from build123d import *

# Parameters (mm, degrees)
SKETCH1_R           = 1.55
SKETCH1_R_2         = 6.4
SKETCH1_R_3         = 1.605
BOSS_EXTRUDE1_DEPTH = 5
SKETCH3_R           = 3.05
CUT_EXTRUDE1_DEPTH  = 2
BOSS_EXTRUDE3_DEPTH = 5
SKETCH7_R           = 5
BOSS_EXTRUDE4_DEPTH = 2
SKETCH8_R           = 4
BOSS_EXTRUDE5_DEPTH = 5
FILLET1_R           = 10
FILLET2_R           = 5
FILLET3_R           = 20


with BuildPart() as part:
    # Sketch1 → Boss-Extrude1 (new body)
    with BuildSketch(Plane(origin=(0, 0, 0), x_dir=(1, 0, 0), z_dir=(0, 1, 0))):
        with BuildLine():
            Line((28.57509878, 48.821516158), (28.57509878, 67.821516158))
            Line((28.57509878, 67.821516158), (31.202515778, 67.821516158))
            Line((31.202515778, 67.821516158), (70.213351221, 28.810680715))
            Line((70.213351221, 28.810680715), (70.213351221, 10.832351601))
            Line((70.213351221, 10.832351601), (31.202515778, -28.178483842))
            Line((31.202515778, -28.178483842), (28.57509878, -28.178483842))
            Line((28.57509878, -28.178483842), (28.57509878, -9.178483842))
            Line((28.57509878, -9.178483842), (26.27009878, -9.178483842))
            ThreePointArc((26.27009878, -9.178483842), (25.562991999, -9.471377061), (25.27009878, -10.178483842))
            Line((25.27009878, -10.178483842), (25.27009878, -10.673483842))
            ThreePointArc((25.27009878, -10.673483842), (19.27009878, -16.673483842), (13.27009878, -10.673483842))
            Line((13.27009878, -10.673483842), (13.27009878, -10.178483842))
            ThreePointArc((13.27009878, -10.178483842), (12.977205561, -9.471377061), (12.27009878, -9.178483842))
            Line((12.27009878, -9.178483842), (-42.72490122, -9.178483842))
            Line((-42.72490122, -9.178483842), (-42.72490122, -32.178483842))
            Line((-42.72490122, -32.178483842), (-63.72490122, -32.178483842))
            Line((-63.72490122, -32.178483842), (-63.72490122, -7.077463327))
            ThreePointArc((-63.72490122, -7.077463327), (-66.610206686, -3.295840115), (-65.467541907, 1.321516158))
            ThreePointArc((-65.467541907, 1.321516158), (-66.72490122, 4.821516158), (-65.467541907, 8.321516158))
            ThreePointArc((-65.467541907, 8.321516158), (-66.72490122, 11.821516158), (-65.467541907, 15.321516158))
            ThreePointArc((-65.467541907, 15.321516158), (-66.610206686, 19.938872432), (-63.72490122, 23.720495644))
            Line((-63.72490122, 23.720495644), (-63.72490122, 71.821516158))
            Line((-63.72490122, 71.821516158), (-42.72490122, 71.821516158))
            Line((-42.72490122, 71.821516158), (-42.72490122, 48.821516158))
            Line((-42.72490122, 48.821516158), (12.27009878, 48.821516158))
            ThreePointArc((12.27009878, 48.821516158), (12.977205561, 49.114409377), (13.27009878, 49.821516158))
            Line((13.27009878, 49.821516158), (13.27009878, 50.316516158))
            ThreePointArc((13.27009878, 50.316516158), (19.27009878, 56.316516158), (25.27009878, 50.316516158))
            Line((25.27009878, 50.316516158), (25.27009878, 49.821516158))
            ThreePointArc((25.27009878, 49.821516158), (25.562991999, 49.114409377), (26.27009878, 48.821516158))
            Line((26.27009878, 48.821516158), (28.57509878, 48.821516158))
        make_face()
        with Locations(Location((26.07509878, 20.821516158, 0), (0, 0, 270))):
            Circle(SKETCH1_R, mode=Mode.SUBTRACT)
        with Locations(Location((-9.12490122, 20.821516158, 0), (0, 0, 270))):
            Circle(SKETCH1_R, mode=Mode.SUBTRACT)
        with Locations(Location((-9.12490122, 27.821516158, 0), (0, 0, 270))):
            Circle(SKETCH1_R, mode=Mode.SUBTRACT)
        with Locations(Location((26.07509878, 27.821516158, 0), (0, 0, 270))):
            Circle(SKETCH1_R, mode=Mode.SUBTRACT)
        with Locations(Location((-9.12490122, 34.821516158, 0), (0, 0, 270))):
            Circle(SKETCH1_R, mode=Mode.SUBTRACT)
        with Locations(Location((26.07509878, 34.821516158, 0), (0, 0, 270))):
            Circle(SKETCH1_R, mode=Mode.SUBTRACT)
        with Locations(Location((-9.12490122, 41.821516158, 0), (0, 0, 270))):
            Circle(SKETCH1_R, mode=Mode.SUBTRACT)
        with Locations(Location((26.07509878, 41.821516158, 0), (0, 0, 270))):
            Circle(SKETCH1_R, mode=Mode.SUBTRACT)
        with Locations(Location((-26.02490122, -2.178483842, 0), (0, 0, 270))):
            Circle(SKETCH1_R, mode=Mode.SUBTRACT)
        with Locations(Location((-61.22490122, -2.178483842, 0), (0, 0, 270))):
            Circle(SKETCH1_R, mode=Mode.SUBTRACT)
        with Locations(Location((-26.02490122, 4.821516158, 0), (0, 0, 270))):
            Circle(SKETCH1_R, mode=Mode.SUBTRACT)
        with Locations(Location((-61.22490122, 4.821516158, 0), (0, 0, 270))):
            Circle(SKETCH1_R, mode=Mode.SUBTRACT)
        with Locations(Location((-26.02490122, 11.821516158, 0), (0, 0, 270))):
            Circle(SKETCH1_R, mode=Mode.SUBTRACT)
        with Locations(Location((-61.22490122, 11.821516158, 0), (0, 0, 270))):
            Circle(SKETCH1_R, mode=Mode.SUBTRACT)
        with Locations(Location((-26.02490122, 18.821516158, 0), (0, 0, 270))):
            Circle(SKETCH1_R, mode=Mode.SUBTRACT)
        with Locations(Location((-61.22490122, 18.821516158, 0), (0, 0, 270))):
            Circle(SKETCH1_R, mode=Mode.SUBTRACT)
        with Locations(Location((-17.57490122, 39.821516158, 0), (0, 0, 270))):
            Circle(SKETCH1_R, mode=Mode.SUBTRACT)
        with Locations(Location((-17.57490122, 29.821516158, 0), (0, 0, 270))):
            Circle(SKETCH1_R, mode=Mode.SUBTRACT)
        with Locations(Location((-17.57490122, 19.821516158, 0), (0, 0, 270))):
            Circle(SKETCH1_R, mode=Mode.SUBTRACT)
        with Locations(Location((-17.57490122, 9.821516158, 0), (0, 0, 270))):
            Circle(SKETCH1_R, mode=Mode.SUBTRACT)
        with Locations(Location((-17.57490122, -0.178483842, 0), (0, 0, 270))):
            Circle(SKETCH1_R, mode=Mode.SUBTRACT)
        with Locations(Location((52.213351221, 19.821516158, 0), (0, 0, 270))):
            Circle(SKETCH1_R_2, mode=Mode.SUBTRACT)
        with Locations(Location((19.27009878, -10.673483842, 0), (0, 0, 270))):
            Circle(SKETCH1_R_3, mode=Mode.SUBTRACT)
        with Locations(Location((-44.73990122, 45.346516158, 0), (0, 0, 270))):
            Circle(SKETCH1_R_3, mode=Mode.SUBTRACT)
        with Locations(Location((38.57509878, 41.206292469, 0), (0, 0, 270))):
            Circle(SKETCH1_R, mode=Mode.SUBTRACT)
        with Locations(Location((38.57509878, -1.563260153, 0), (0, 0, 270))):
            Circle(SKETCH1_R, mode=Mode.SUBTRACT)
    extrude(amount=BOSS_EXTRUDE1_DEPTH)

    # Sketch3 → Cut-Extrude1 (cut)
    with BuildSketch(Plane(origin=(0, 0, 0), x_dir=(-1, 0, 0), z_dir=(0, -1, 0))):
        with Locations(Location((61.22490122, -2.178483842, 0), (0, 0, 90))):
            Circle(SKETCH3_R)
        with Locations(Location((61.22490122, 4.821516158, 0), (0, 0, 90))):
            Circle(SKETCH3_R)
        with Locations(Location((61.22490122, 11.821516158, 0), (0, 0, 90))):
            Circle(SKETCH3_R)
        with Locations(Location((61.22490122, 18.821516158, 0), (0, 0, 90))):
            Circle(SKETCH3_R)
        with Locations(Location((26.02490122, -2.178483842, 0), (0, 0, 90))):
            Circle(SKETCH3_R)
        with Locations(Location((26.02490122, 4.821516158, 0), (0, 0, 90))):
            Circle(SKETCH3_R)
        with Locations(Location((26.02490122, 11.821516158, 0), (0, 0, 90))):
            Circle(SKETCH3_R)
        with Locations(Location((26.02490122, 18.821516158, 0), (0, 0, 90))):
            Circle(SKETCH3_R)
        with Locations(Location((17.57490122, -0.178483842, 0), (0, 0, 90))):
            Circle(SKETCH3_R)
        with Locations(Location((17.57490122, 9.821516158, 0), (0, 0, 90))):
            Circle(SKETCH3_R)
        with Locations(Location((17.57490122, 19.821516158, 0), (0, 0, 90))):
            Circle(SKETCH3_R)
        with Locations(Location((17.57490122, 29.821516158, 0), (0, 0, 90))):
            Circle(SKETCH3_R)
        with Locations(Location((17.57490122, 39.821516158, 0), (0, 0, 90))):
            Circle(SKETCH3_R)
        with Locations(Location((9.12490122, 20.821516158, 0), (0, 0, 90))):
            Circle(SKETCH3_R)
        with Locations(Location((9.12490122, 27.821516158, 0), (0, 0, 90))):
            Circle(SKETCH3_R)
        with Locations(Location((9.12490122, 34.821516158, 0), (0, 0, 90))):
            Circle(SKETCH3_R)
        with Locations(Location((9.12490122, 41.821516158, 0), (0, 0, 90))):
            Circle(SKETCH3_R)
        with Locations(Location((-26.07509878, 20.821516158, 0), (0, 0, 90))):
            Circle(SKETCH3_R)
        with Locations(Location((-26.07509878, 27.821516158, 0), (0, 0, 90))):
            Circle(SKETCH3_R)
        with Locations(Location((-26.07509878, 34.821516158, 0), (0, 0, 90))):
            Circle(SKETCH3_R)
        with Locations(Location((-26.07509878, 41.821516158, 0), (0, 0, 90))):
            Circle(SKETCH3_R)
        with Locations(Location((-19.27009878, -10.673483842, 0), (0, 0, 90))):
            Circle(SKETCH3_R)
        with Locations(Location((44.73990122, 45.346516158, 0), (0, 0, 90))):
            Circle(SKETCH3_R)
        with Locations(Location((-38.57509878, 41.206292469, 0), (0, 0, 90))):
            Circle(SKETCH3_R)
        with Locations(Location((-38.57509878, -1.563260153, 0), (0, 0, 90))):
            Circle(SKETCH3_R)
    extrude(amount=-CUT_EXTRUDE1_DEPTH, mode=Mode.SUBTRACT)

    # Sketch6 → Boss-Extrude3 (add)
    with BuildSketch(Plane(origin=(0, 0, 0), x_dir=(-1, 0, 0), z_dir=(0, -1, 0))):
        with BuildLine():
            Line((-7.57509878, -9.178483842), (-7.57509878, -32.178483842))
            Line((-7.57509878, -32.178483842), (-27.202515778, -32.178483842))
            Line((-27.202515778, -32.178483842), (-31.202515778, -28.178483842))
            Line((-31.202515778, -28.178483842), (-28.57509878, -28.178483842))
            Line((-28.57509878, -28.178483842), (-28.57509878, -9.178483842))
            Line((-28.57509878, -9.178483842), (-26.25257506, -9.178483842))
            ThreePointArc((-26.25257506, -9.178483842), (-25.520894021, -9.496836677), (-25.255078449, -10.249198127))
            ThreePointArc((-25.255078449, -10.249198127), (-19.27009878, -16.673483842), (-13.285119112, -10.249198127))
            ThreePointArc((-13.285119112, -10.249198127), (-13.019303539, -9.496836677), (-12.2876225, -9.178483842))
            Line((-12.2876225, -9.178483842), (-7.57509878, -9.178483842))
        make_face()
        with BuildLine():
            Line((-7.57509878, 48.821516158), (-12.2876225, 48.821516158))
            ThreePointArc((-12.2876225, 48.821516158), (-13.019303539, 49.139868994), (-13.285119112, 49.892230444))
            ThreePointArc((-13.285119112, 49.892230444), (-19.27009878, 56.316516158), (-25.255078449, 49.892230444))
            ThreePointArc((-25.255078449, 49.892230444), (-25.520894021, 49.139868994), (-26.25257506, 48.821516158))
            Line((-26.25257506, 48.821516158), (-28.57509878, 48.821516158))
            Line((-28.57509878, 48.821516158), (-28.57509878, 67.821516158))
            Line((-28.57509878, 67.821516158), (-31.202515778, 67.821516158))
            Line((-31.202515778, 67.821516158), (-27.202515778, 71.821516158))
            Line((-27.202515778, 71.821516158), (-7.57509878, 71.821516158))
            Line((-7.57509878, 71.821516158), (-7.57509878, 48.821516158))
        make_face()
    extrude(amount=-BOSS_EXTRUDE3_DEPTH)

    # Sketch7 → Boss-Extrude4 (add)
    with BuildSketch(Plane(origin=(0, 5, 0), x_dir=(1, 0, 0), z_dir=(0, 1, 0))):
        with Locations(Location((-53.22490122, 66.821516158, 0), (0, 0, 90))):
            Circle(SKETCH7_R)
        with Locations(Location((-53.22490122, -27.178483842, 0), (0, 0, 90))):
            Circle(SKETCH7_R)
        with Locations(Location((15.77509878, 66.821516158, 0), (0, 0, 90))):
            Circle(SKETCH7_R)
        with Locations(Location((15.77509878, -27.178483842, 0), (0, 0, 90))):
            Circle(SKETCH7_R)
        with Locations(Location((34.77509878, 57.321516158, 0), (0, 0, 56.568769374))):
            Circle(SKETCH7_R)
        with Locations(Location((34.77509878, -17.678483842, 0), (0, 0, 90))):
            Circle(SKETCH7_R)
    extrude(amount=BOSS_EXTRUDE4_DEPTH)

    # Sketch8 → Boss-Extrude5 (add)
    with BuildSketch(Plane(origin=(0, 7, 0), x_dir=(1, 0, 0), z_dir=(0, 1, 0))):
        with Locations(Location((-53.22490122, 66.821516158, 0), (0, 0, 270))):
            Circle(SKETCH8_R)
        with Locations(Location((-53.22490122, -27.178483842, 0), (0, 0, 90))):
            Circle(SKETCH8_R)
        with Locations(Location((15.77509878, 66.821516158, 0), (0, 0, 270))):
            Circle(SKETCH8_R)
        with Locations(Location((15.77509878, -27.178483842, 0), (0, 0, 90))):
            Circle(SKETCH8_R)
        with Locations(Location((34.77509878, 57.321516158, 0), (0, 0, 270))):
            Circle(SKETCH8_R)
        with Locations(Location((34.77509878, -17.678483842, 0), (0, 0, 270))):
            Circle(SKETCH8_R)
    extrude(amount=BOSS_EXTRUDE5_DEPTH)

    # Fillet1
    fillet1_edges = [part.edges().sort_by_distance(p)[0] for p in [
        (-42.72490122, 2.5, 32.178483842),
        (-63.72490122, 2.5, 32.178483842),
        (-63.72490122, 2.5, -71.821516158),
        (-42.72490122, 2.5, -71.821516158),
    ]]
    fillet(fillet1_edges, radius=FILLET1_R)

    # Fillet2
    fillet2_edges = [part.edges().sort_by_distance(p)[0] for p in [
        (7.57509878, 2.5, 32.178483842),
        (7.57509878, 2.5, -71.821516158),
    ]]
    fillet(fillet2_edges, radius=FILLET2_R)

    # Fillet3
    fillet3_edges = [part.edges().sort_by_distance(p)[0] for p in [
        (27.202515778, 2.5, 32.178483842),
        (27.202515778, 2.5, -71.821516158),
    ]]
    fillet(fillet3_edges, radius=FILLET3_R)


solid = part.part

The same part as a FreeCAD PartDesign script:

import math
import FreeCAD as App
import Part
import Sketcher


def edges_at(feature, points):
    """Names of the edges that pass closest to the given points."""
    edges = feature.Shape.Edges
    near = lambda p: min(range(len(edges)), key=lambda i: edges[i].distToShape(Part.Vertex(*p))[0])
    return sorted({f"Edge{near(p) + 1}" for p in points})

doc = App.newDocument("Part")
body = doc.addObject("PartDesign::Body", "Body")

sketch1 = doc.addObject("Sketcher::SketchObject", "Sketch")
body.addObject(sketch1)
sketch1.AttachmentSupport = (doc.XZ_Plane, [""])
sketch1.MapMode = "FlatFace"
sketch1.addGeometry([
    Part.LineSegment(App.Vector(28.58, -67.82, 0), App.Vector(28.58, -48.82, 0)),
    Part.LineSegment(App.Vector(28.58, -48.82, 0), App.Vector(26.27, -48.82, 0)),
    Part.ArcOfCircle(Part.Circle(App.Vector(26.27, -49.82, 0), App.Vector(0, 0, 1), 1), math.radians(90), math.radians(180)),
    Part.LineSegment(App.Vector(25.27, -49.82, 0), App.Vector(25.27, -50.32, 0)),
    Part.ArcOfCircle(Part.Circle(App.Vector(19.27, -50.32, 0), App.Vector(0, 0, 1), 6), math.radians(180), math.radians(360)),
    Part.LineSegment(App.Vector(13.27, -50.32, 0), App.Vector(13.27, -49.82, 0)),
    Part.ArcOfCircle(Part.Circle(App.Vector(12.27, -49.82, 0), App.Vector(0, 0, 1), 1), math.radians(0), math.radians(90)),
    Part.LineSegment(App.Vector(12.27, -48.82, 0), App.Vector(-42.72, -48.82, 0)),
    Part.LineSegment(App.Vector(-42.72, -48.82, 0), App.Vector(-42.72, -71.82, 0)),
    Part.LineSegment(App.Vector(-42.72, -71.82, 0), App.Vector(-63.72, -71.82, 0)),
    Part.LineSegment(App.Vector(-63.72, -71.82, 0), App.Vector(-63.72, -23.72, 0)),
    Part.ArcOfCircle(Part.Circle(App.Vector(-61.22, -18.82, 0), App.Vector(0, 0, 1), 5.5), math.radians(140), math.radians(243)),
    Part.ArcOfCircle(Part.Circle(App.Vector(-61.22, -11.82, 0), App.Vector(0, 0, 1), 5.5), math.radians(140), math.radians(220)),
    Part.ArcOfCircle(Part.Circle(App.Vector(-61.22, -4.82, 0), App.Vector(0, 0, 1), 5.5), math.radians(140), math.radians(220)),
    Part.ArcOfCircle(Part.Circle(App.Vector(-61.22, 2.18, 0), App.Vector(0, 0, 1), 5.5), math.radians(117), math.radians(220)),
    Part.LineSegment(App.Vector(-63.72, 7.08, 0), App.Vector(-63.72, 32.18, 0)),
    Part.LineSegment(App.Vector(-63.72, 32.18, 0), App.Vector(-42.72, 32.18, 0)),
    Part.LineSegment(App.Vector(-42.72, 32.18, 0), App.Vector(-42.72, 9.18, 0)),
    Part.LineSegment(App.Vector(-42.72, 9.18, 0), App.Vector(12.27, 9.18, 0)),
    Part.ArcOfCircle(Part.Circle(App.Vector(12.27, 10.18, 0), App.Vector(0, 0, 1), 1), math.radians(-90), math.radians(0)),
    Part.LineSegment(App.Vector(13.27, 10.18, 0), App.Vector(13.27, 10.67, 0)),
    Part.ArcOfCircle(Part.Circle(App.Vector(19.27, 10.67, 0), App.Vector(0, 0, 1), 6), math.radians(0), math.radians(180)),
    Part.LineSegment(App.Vector(25.27, 10.67, 0), App.Vector(25.27, 10.18, 0)),
    Part.ArcOfCircle(Part.Circle(App.Vector(26.27, 10.18, 0), App.Vector(0, 0, 1), 1), math.radians(-180), math.radians(-90)),
    Part.LineSegment(App.Vector(26.27, 9.18, 0), App.Vector(28.58, 9.18, 0)),
    Part.LineSegment(App.Vector(28.58, 9.18, 0), App.Vector(28.58, 28.18, 0)),
    Part.LineSegment(App.Vector(28.58, 28.18, 0), App.Vector(31.2, 28.18, 0)),
    Part.LineSegment(App.Vector(31.2, 28.18, 0), App.Vector(70.21, -10.83, 0)),
    Part.LineSegment(App.Vector(70.21, -10.83, 0), App.Vector(70.21, -28.81, 0)),
    Part.LineSegment(App.Vector(70.21, -28.81, 0), App.Vector(31.2, -67.82, 0)),
    Part.LineSegment(App.Vector(31.2, -67.82, 0), App.Vector(28.58, -67.82, 0)),
    Part.Circle(App.Vector(38.58, 1.56, 0), App.Vector(0, 0, 1), 1.55),
    Part.Circle(App.Vector(19.27, 10.67, 0), App.Vector(0, 0, 1), 1.6),
    Part.Circle(App.Vector(-26.02, 2.18, 0), App.Vector(0, 0, 1), 1.55),
    Part.Circle(App.Vector(-17.57, 0.18, 0), App.Vector(0, 0, 1), 1.55),
    Part.Circle(App.Vector(-61.22, 2.18, 0), App.Vector(0, 0, 1), 1.55),
    Part.Circle(App.Vector(-26.02, -4.82, 0), App.Vector(0, 0, 1), 1.55),
    Part.Circle(App.Vector(-17.57, -9.82, 0), App.Vector(0, 0, 1), 1.55),
    Part.Circle(App.Vector(-26.02, -11.82, 0), App.Vector(0, 0, 1), 1.55),
    Part.Circle(App.Vector(-61.22, -4.82, 0), App.Vector(0, 0, 1), 1.55),
    Part.Circle(App.Vector(-61.22, -11.82, 0), App.Vector(0, 0, 1), 1.55),
    Part.Circle(App.Vector(52.21, -19.82, 0), App.Vector(0, 0, 1), 6.4),
    Part.Circle(App.Vector(26.08, -20.82, 0), App.Vector(0, 0, 1), 1.55),
    Part.Circle(App.Vector(26.08, -27.82, 0), App.Vector(0, 0, 1), 1.55),
    Part.Circle(App.Vector(38.58, -41.21, 0), App.Vector(0, 0, 1), 1.55),
    Part.Circle(App.Vector(26.08, -34.82, 0), App.Vector(0, 0, 1), 1.55),
    Part.Circle(App.Vector(26.08, -41.82, 0), App.Vector(0, 0, 1), 1.55),
    Part.Circle(App.Vector(-9.12, -20.82, 0), App.Vector(0, 0, 1), 1.55),
    Part.Circle(App.Vector(-17.57, -19.82, 0), App.Vector(0, 0, 1), 1.55),
    Part.Circle(App.Vector(-26.02, -18.82, 0), App.Vector(0, 0, 1), 1.55),
    Part.Circle(App.Vector(-9.12, -27.82, 0), App.Vector(0, 0, 1), 1.55),
    Part.Circle(App.Vector(-17.57, -29.82, 0), App.Vector(0, 0, 1), 1.55),
    Part.Circle(App.Vector(-61.22, -18.82, 0), App.Vector(0, 0, 1), 1.55),
    Part.Circle(App.Vector(-9.12, -34.82, 0), App.Vector(0, 0, 1), 1.55),
    Part.Circle(App.Vector(-9.12, -41.82, 0), App.Vector(0, 0, 1), 1.55),
    Part.Circle(App.Vector(-17.57, -39.82, 0), App.Vector(0, 0, 1), 1.55),
    Part.Circle(App.Vector(-44.74, -45.35, 0), App.Vector(0, 0, 1), 1.6),
], False)
sketch1.addConstraint([
    Sketcher.Constraint("Coincident", 0, 2, 1, 1),
    Sketcher.Constraint("Tangent", 1, 2, 2, 1),
    Sketcher.Constraint("Tangent", 2, 2, 3, 1),
    Sketcher.Constraint("Tangent", 3, 2, 4, 2),
    Sketcher.Constraint("Tangent", 4, 1, 5, 1),
    Sketcher.Constraint("Tangent", 5, 2, 6, 1),
    Sketcher.Constraint("Tangent", 6, 2, 7, 1),
    Sketcher.Constraint("Coincident", 7, 2, 8, 1),
    Sketcher.Constraint("Coincident", 8, 2, 9, 1),
    Sketcher.Constraint("Coincident", 9, 2, 10, 1),
    Sketcher.Constraint("Coincident", 10, 2, 11, 2),
    Sketcher.Constraint("Coincident", 11, 1, 12, 2),
    Sketcher.Constraint("Coincident", 12, 1, 13, 2),
    Sketcher.Constraint("Coincident", 13, 1, 14, 2),
    Sketcher.Constraint("Coincident", 14, 1, 15, 1),
    Sketcher.Constraint("Coincident", 15, 2, 16, 1),
    Sketcher.Constraint("Coincident", 16, 2, 17, 1),
    Sketcher.Constraint("Coincident", 17, 2, 18, 1),
    Sketcher.Constraint("Tangent", 18, 2, 19, 1),
    Sketcher.Constraint("Tangent", 19, 2, 20, 1),
    Sketcher.Constraint("Tangent", 20, 2, 21, 2),
    Sketcher.Constraint("Tangent", 21, 1, 22, 1),
    Sketcher.Constraint("Tangent", 22, 2, 23, 1),
    Sketcher.Constraint("Tangent", 23, 2, 24, 1),
    Sketcher.Constraint("Coincident", 24, 2, 25, 1),
    Sketcher.Constraint("Coincident", 25, 2, 26, 1),
    Sketcher.Constraint("Coincident", 26, 2, 27, 1),
    Sketcher.Constraint("Coincident", 27, 2, 28, 1),
    Sketcher.Constraint("Coincident", 28, 2, 29, 1),
    Sketcher.Constraint("Coincident", 29, 2, 30, 1),
    Sketcher.Constraint("Coincident", 30, 2, 0, 1),
    Sketcher.Constraint("Vertical", 0),
    Sketcher.Constraint("Horizontal", 1),
    Sketcher.Constraint("Vertical", 3),
    Sketcher.Constraint("Vertical", 5),
    Sketcher.Constraint("Horizontal", 7),
    Sketcher.Constraint("Vertical", 8),
    Sketcher.Constraint("Horizontal", 9),
    Sketcher.Constraint("Vertical", 10),
    Sketcher.Constraint("Vertical", 15),
    Sketcher.Constraint("Horizontal", 16),
    Sketcher.Constraint("Vertical", 17),
    Sketcher.Constraint("Horizontal", 18),
    Sketcher.Constraint("Vertical", 20),
    Sketcher.Constraint("Vertical", 22),
    Sketcher.Constraint("Horizontal", 24),
    Sketcher.Constraint("Vertical", 25),
    Sketcher.Constraint("Horizontal", 26),
    Sketcher.Constraint("Vertical", 28),
    Sketcher.Constraint("Horizontal", 30),
    Sketcher.Constraint("Coincident", 32, 3, 21, 3),
    Sketcher.Constraint("Coincident", 35, 3, 14, 3),
    Sketcher.Constraint("Coincident", 39, 3, 13, 3),
    Sketcher.Constraint("Coincident", 40, 3, 12, 3),
    Sketcher.Constraint("Coincident", 52, 3, 11, 3),
    Sketcher.Constraint("Equal", 2, 6),
    Sketcher.Constraint("Equal", 11, 12),
    Sketcher.Constraint("Equal", 12, 13),
    Sketcher.Constraint("Equal", 13, 14),
    Sketcher.Constraint("Equal", 6, 19),
    Sketcher.Constraint("Equal", 4, 21),
    Sketcher.Constraint("Equal", 19, 23),
    Sketcher.Constraint("Equal", 31, 33),
    Sketcher.Constraint("Equal", 33, 34),
    Sketcher.Constraint("Equal", 34, 35),
    Sketcher.Constraint("Equal", 35, 36),
    Sketcher.Constraint("Equal", 36, 37),
    Sketcher.Constraint("Equal", 37, 38),
    Sketcher.Constraint("Equal", 38, 39),
    Sketcher.Constraint("Equal", 39, 40),
    Sketcher.Constraint("Equal", 40, 42),
    Sketcher.Constraint("Equal", 42, 43),
    Sketcher.Constraint("Equal", 43, 44),
    Sketcher.Constraint("Equal", 44, 45),
    Sketcher.Constraint("Equal", 45, 46),
    Sketcher.Constraint("Equal", 46, 47),
    Sketcher.Constraint("Equal", 47, 48),
    Sketcher.Constraint("Equal", 48, 49),
    Sketcher.Constraint("Equal", 49, 50),
    Sketcher.Constraint("Equal", 50, 51),
    Sketcher.Constraint("Equal", 51, 52),
    Sketcher.Constraint("Equal", 52, 53),
    Sketcher.Constraint("Equal", 53, 54),
    Sketcher.Constraint("Equal", 54, 55),
    Sketcher.Constraint("Equal", 32, 56),
    Sketcher.Constraint("Perpendicular", 27, 29),
    Sketcher.Constraint("Horizontal", 2, 3, 6, 3),
    Sketcher.Constraint("Horizontal", 19, 3, 23, 3),
    Sketcher.Constraint("Horizontal", 14, 3, 33, 3),
    Sketcher.Constraint("Horizontal", 13, 3, 36, 3),
    Sketcher.Constraint("Horizontal", 12, 3, 38, 3),
    Sketcher.Constraint("Horizontal", 42, 3, 47, 3),
    Sketcher.Constraint("Horizontal", 41, 3, 48, 3),
    Sketcher.Constraint("Horizontal", 11, 3, 49, 3),
    Sketcher.Constraint("Horizontal", 43, 3, 50, 3),
    Sketcher.Constraint("Horizontal", 45, 3, 53, 3),
    Sketcher.Constraint("Horizontal", 46, 3, 54, 3),
    Sketcher.Constraint("Vertical", 11, 3, 12, 3),
    Sketcher.Constraint("Vertical", 12, 3, 13, 3),
    Sketcher.Constraint("Vertical", 13, 3, 14, 3),
    Sketcher.Constraint("Vertical", 6, 3, 19, 3),
    Sketcher.Constraint("Vertical", 33, 3, 36, 3),
    Sketcher.Constraint("Vertical", 34, 3, 37, 3),
    Sketcher.Constraint("Vertical", 36, 3, 38, 3),
    Sketcher.Constraint("Vertical", 42, 3, 43, 3),
    Sketcher.Constraint("Vertical", 31, 3, 44, 3),
    Sketcher.Constraint("Vertical", 43, 3, 45, 3),
    Sketcher.Constraint("Vertical", 45, 3, 46, 3),
    Sketcher.Constraint("Vertical", 37, 3, 48, 3),
    Sketcher.Constraint("Vertical", 38, 3, 49, 3),
    Sketcher.Constraint("Vertical", 47, 3, 50, 3),
    Sketcher.Constraint("Vertical", 48, 3, 51, 3),
    Sketcher.Constraint("Vertical", 50, 3, 53, 3),
    Sketcher.Constraint("Vertical", 53, 3, 54, 3),
    Sketcher.Constraint("Vertical", 51, 3, 55, 3),
    Sketcher.Constraint("Vertical", 11, 1, 12, 1),
    Sketcher.Constraint("Vertical", 12, 1, 13, 1),
    Sketcher.Constraint("Vertical", 10, 2, 14, 1),
    Sketcher.Constraint("Vertical", 8, 2, 16, 2),
    Sketcher.Constraint("Vertical", 0, 2, 24, 2),
    Sketcher.Constraint("Vertical", 26, 2, 29, 2),
    Sketcher.Constraint("Equal", 8, 17),
    Sketcher.Constraint("Equal", 5, 20),
    Sketcher.Constraint("Equal", 0, 25),
    Sketcher.Constraint("Equal", 27, 29),
    Sketcher.Constraint("Radius", 2, 1.0),
    Sketcher.Constraint("Radius", 4, 6.0),
    Sketcher.Constraint("Diameter", 31, 3.1),
    Sketcher.Constraint("Diameter", 41, 12.8),
    Sketcher.Constraint("Radius", 11, 5.5),
    Sketcher.Constraint("Diameter", 32, 3.21),
    Sketcher.Constraint("DistanceX", 9, 2, 9, 1, 21.0),
    Sketcher.Constraint("DistanceY", 0, 1, 0, 2, 19.0),
    Sketcher.Constraint("DistanceY", 8, 2, 8, 1, 23.0),
    Sketcher.Constraint("DistanceX", 1, 2, 1, 1, 2.305),
    Sketcher.Constraint("DistanceX", 7, 2, 7, 1, 54.995),
    Sketcher.Constraint("DistanceY", 3, 2, 3, 1, 0.495),
    Sketcher.Constraint("DistanceY", 10, 1, 10, 2, 48.101021),
    Sketcher.Constraint("DistanceY", 15, 1, 15, 2, 25.101021),
    Sketcher.Constraint("DistanceY", 28, 2, 28, 1, 17.978329),
    Sketcher.Constraint("DistanceX", -1, 1, 2, 3, 26.270099),
    Sketcher.Constraint("DistanceX", 11, 3, -1, 1, 61.224901),
    Sketcher.Constraint("DistanceX", -1, 1, 31, 3, 38.575099),
    Sketcher.Constraint("DistanceX", 33, 3, -1, 1, 26.024901),
    Sketcher.Constraint("DistanceX", 34, 3, -1, 1, 17.574901),
    Sketcher.Constraint("DistanceX", -1, 1, 42, 3, 26.075099),
    Sketcher.Constraint("DistanceX", 47, 3, -1, 1, 9.124901),
    Sketcher.Constraint("DistanceX", 56, 3, -1, 1, 44.739901),
    Sketcher.Constraint("DistanceX", 26, 1, 26, 2, 2.627417),
    Sketcher.Constraint("DistanceY", -1, 1, 31, 3, 1.56326),
    Sketcher.Constraint("DistanceX", -1, 1, 41, 3, 52.213351),
    Sketcher.Constraint("DistanceX", 11, 1, -1, 1, 65.467542),
    Sketcher.Constraint("DistanceY", 27, 2, -1, 1, 10.832352),
    Sketcher.Constraint("DistanceY", -1, 1, 34, 3, 0.178484),
    Sketcher.Constraint("DistanceY", 37, 3, -1, 1, 9.821516),
    Sketcher.Constraint("DistanceY", 41, 3, -1, 1, 19.821516),
    Sketcher.Constraint("DistanceY", 42, 3, -1, 1, 20.821516),
    Sketcher.Constraint("DistanceY", 43, 3, -1, 1, 27.821516),
    Sketcher.Constraint("DistanceY", 44, 3, -1, 1, 41.206292),
    Sketcher.Constraint("DistanceY", 45, 3, -1, 1, 34.821516),
    Sketcher.Constraint("DistanceY", 46, 3, -1, 1, 41.821516),
    Sketcher.Constraint("DistanceY", 51, 3, -1, 1, 29.821516),
    Sketcher.Constraint("DistanceY", 55, 3, -1, 1, 39.821516),
    Sketcher.Constraint("DistanceY", 56, 3, -1, 1, 45.346516),
])
pad1 = doc.addObject("PartDesign::Pad", "Pad")
body.addObject(pad1)
pad1.Profile = sketch1
pad1.Length = 5
pad1.Reversed = True

sketch2 = doc.addObject("Sketcher::SketchObject", "Sketch001")
body.addObject(sketch2)
sketch2.AttachmentSupport = (doc.XZ_Plane, [""])
sketch2.MapMode = "FlatFace"
sketch2.addGeometry([
    Part.Circle(App.Vector(-61.2, 2.2, 0), App.Vector(0, 0, 1), 3),
    Part.Circle(App.Vector(-61.2, -4.8, 0), App.Vector(0, 0, 1), 3),
    Part.Circle(App.Vector(-61.2, -11.8, 0), App.Vector(0, 0, 1), 3),
    Part.Circle(App.Vector(-61.2, -18.8, 0), App.Vector(0, 0, 1), 3),
    Part.Circle(App.Vector(-26, 2.2, 0), App.Vector(0, 0, 1), 3),
    Part.Circle(App.Vector(-26, -4.8, 0), App.Vector(0, 0, 1), 3),
    Part.Circle(App.Vector(-26, -11.8, 0), App.Vector(0, 0, 1), 3),
    Part.Circle(App.Vector(-26, -18.8, 0), App.Vector(0, 0, 1), 3),
    Part.Circle(App.Vector(-17.6, 0.2, 0), App.Vector(0, 0, 1), 3),
    Part.Circle(App.Vector(-17.6, -9.8, 0), App.Vector(0, 0, 1), 3),
    Part.Circle(App.Vector(-17.6, -19.8, 0), App.Vector(0, 0, 1), 3),
    Part.Circle(App.Vector(-17.6, -29.8, 0), App.Vector(0, 0, 1), 3),
    Part.Circle(App.Vector(-17.6, -39.8, 0), App.Vector(0, 0, 1), 3),
    Part.Circle(App.Vector(-9.1, -20.8, 0), App.Vector(0, 0, 1), 3),
    Part.Circle(App.Vector(-9.1, -27.8, 0), App.Vector(0, 0, 1), 3),
    Part.Circle(App.Vector(-9.1, -34.8, 0), App.Vector(0, 0, 1), 3),
    Part.Circle(App.Vector(-9.1, -41.8, 0), App.Vector(0, 0, 1), 3),
    Part.Circle(App.Vector(26.1, -20.8, 0), App.Vector(0, 0, 1), 3),
    Part.Circle(App.Vector(26.1, -27.8, 0), App.Vector(0, 0, 1), 3),
    Part.Circle(App.Vector(26.1, -34.8, 0), App.Vector(0, 0, 1), 3),
    Part.Circle(App.Vector(26.1, -41.8, 0), App.Vector(0, 0, 1), 3),
    Part.Circle(App.Vector(19.3, 10.7, 0), App.Vector(0, 0, 1), 3),
    Part.Circle(App.Vector(-44.7, -45.3, 0), App.Vector(0, 0, 1), 3),
    Part.Circle(App.Vector(38.6, -41.2, 0), App.Vector(0, 0, 1), 3),
    Part.Circle(App.Vector(38.6, 1.6, 0), App.Vector(0, 0, 1), 3),
], False)
sketch2.addConstraint([
    Sketcher.Constraint("Equal", 0, 1),
    Sketcher.Constraint("Equal", 1, 2),
    Sketcher.Constraint("Equal", 2, 3),
    Sketcher.Constraint("Equal", 3, 4),
    Sketcher.Constraint("Equal", 4, 5),
    Sketcher.Constraint("Equal", 5, 6),
    Sketcher.Constraint("Equal", 6, 7),
    Sketcher.Constraint("Equal", 7, 8),
    Sketcher.Constraint("Equal", 8, 9),
    Sketcher.Constraint("Equal", 9, 10),
    Sketcher.Constraint("Equal", 10, 11),
    Sketcher.Constraint("Equal", 11, 12),
    Sketcher.Constraint("Equal", 12, 13),
    Sketcher.Constraint("Equal", 13, 14),
    Sketcher.Constraint("Equal", 14, 15),
    Sketcher.Constraint("Equal", 15, 16),
    Sketcher.Constraint("Equal", 16, 17),
    Sketcher.Constraint("Equal", 17, 18),
    Sketcher.Constraint("Equal", 18, 19),
    Sketcher.Constraint("Equal", 19, 20),
    Sketcher.Constraint("Equal", 20, 21),
    Sketcher.Constraint("Equal", 21, 22),
    Sketcher.Constraint("Equal", 22, 23),
    Sketcher.Constraint("Equal", 23, 24),
    Sketcher.Constraint("Horizontal", 0, 3, 4, 3),
    Sketcher.Constraint("Horizontal", 1, 3, 5, 3),
    Sketcher.Constraint("Horizontal", 2, 3, 6, 3),
    Sketcher.Constraint("Horizontal", 3, 3, 7, 3),
    Sketcher.Constraint("Horizontal", 13, 3, 17, 3),
    Sketcher.Constraint("Horizontal", 14, 3, 18, 3),
    Sketcher.Constraint("Horizontal", 15, 3, 19, 3),
    Sketcher.Constraint("Horizontal", 16, 3, 20, 3),
    Sketcher.Constraint("Vertical", 0, 3, 1, 3),
    Sketcher.Constraint("Vertical", 1, 3, 2, 3),
    Sketcher.Constraint("Vertical", 2, 3, 3, 3),
    Sketcher.Constraint("Vertical", 4, 3, 5, 3),
    Sketcher.Constraint("Vertical", 5, 3, 6, 3),
    Sketcher.Constraint("Vertical", 6, 3, 7, 3),
    Sketcher.Constraint("Vertical", 8, 3, 9, 3),
    Sketcher.Constraint("Vertical", 9, 3, 10, 3),
    Sketcher.Constraint("Vertical", 10, 3, 11, 3),
    Sketcher.Constraint("Vertical", 11, 3, 12, 3),
    Sketcher.Constraint("Vertical", 13, 3, 14, 3),
    Sketcher.Constraint("Vertical", 14, 3, 15, 3),
    Sketcher.Constraint("Vertical", 15, 3, 16, 3),
    Sketcher.Constraint("Vertical", 17, 3, 18, 3),
    Sketcher.Constraint("Vertical", 18, 3, 19, 3),
    Sketcher.Constraint("Vertical", 19, 3, 20, 3),
    Sketcher.Constraint("Vertical", 23, 3, 24, 3),
    Sketcher.Constraint("Diameter", 0, 6.1),
    Sketcher.Constraint("DistanceY", 1, 3, 0, 3, 7.0),
    Sketcher.Constraint("DistanceY", 2, 3, 1, 3, 7.0),
    Sketcher.Constraint("DistanceY", 3, 3, 2, 3, 7.0),
    Sketcher.Constraint("DistanceY", 8, 3, 4, 3, 2.0),
    Sketcher.Constraint("DistanceY", 6, 3, 9, 3, 2.0),
    Sketcher.Constraint("DistanceY", 10, 3, 7, 3, 1.0),
    Sketcher.Constraint("DistanceY", 11, 3, 10, 3, 10.0),
    Sketcher.Constraint("DistanceY", 12, 3, 11, 3, 10.0),
    Sketcher.Constraint("DistanceY", 13, 3, 10, 3, 1.0),
    Sketcher.Constraint("DistanceY", 14, 3, 13, 3, 7.0),
    Sketcher.Constraint("DistanceY", 15, 3, 14, 3, 7.0),
    Sketcher.Constraint("DistanceY", 16, 3, 15, 3, 7.0),
    Sketcher.Constraint("DistanceX", 0, 3, 4, 3, 35.2),
    Sketcher.Constraint("DistanceX", 7, 3, 13, 3, 16.9),
    Sketcher.Constraint("DistanceX", 13, 3, 17, 3, 35.2),
    Sketcher.Constraint("DistanceX", 20, 3, 23, 3, 12.5),
    Sketcher.Constraint("DistanceX", 4, 3, 8, 3, 8.45),
    Sketcher.Constraint("DistanceX", 21, 3, 17, 3, 6.805),
    Sketcher.Constraint("DistanceY", 17, 3, 21, 3, 31.495),
    Sketcher.Constraint("DistanceX", 22, 3, 12, 3, 27.165),
    Sketcher.Constraint("DistanceY", 22, 3, 12, 3, 5.525),
    Sketcher.Constraint("DistanceX", 0, 3, -1, 1, 61.224901),
    Sketcher.Constraint("DistanceY", -1, 1, 24, 3, 1.56326),
    Sketcher.Constraint("DistanceY", -1, 1, 0, 3, 2.178484),
    Sketcher.Constraint("DistanceY", 23, 3, -1, 1, 41.206292),
])
pocket1 = doc.addObject("PartDesign::Pocket", "Pocket")
body.addObject(pocket1)
pocket1.Profile = sketch2
pocket1.Length = 2

sketch3 = doc.addObject("Sketcher::SketchObject", "Sketch002")
body.addObject(sketch3)
sketch3.AttachmentSupport = (doc.XZ_Plane, [""])
sketch3.MapMode = "FlatFace"
sketch3.addGeometry([
    Part.LineSegment(App.Vector(7.6, 32.2, 0), App.Vector(7.6, 9.2, 0)),
    Part.LineSegment(App.Vector(7.6, 9.2, 0), App.Vector(12.3, 9.2, 0)),
    Part.ArcOfCircle(Part.Circle(App.Vector(12.3, 10.2, 0), App.Vector(0, 0, 1), 1), math.radians(-90), math.radians(4)),
    Part.ArcOfCircle(Part.Circle(App.Vector(19.3, 10.7, 0), App.Vector(0, 0, 1), 6), math.radians(-4), math.radians(184)),
    Part.ArcOfCircle(Part.Circle(App.Vector(26.3, 10.2, 0), App.Vector(0, 0, 1), 1), math.radians(176), math.radians(270)),
    Part.LineSegment(App.Vector(26.3, 9.2, 0), App.Vector(28.6, 9.2, 0)),
    Part.LineSegment(App.Vector(28.6, 9.2, 0), App.Vector(28.6, 28.2, 0)),
    Part.LineSegment(App.Vector(28.6, 28.2, 0), App.Vector(31.2, 28.2, 0)),
    Part.LineSegment(App.Vector(31.2, 28.2, 0), App.Vector(27.2, 32.2, 0)),
    Part.LineSegment(App.Vector(27.2, 32.2, 0), App.Vector(7.6, 32.2, 0)),
    Part.LineSegment(App.Vector(12.3, -48.8, 0), App.Vector(7.6, -48.8, 0)),
    Part.LineSegment(App.Vector(7.6, -48.8, 0), App.Vector(7.6, -71.8, 0)),
    Part.LineSegment(App.Vector(7.6, -71.8, 0), App.Vector(27.2, -71.8, 0)),
    Part.LineSegment(App.Vector(27.2, -71.8, 0), App.Vector(31.2, -67.8, 0)),
    Part.LineSegment(App.Vector(31.2, -67.8, 0), App.Vector(28.6, -67.8, 0)),
    Part.LineSegment(App.Vector(28.6, -67.8, 0), App.Vector(28.6, -48.8, 0)),
    Part.LineSegment(App.Vector(28.6, -48.8, 0), App.Vector(26.3, -48.8, 0)),
    Part.ArcOfCircle(Part.Circle(App.Vector(26.3, -49.8, 0), App.Vector(0, 0, 1), 1), math.radians(90), math.radians(184)),
    Part.ArcOfCircle(Part.Circle(App.Vector(19.3, -50.3, 0), App.Vector(0, 0, 1), 6), math.radians(176), math.radians(364)),
    Part.ArcOfCircle(Part.Circle(App.Vector(12.3, -49.8, 0), App.Vector(0, 0, 1), 1), math.radians(-4), math.radians(90)),
], False)
sketch3.addConstraint([
    Sketcher.Constraint("Coincident", 0, 2, 1, 1),
    Sketcher.Constraint("Tangent", 1, 2, 2, 1),
    Sketcher.Constraint("Tangent", 2, 2, 3, 2),
    Sketcher.Constraint("Tangent", 3, 1, 4, 1),
    Sketcher.Constraint("Tangent", 4, 2, 5, 1),
    Sketcher.Constraint("Coincident", 5, 2, 6, 1),
    Sketcher.Constraint("Coincident", 6, 2, 7, 1),
    Sketcher.Constraint("Coincident", 7, 2, 8, 1),
    Sketcher.Constraint("Coincident", 8, 2, 9, 1),
    Sketcher.Constraint("Coincident", 9, 2, 0, 1),
    Sketcher.Constraint("Coincident", 10, 2, 11, 1),
    Sketcher.Constraint("Coincident", 11, 2, 12, 1),
    Sketcher.Constraint("Coincident", 12, 2, 13, 1),
    Sketcher.Constraint("Coincident", 13, 2, 14, 1),
    Sketcher.Constraint("Coincident", 14, 2, 15, 1),
    Sketcher.Constraint("Coincident", 15, 2, 16, 1),
    Sketcher.Constraint("Tangent", 16, 2, 17, 1),
    Sketcher.Constraint("Tangent", 17, 2, 18, 2),
    Sketcher.Constraint("Tangent", 18, 1, 19, 1),
    Sketcher.Constraint("Tangent", 19, 2, 10, 1),
    Sketcher.Constraint("Vertical", 0),
    Sketcher.Constraint("Horizontal", 1),
    Sketcher.Constraint("Horizontal", 5),
    Sketcher.Constraint("Vertical", 6),
    Sketcher.Constraint("Horizontal", 7),
    Sketcher.Constraint("Horizontal", 9),
    Sketcher.Constraint("Horizontal", 10),
    Sketcher.Constraint("Vertical", 11),
    Sketcher.Constraint("Horizontal", 12),
    Sketcher.Constraint("Horizontal", 14),
    Sketcher.Constraint("Vertical", 15),
    Sketcher.Constraint("Horizontal", 16),
    Sketcher.Constraint("Equal", 2, 4),
    Sketcher.Constraint("Equal", 4, 17),
    Sketcher.Constraint("Equal", 3, 18),
    Sketcher.Constraint("Equal", 17, 19),
    Sketcher.Constraint("Perpendicular", 8, 13),
    Sketcher.Constraint("Horizontal", 2, 3, 4, 3),
    Sketcher.Constraint("Horizontal", 17, 3, 19, 3),
    Sketcher.Constraint("Vertical", 4, 3, 17, 3),
    Sketcher.Constraint("Vertical", 3, 3, 18, 3),
    Sketcher.Constraint("Vertical", 9, 2, 10, 2),
    Sketcher.Constraint("Vertical", 8, 2, 12, 2),
    Sketcher.Constraint("Vertical", 7, 2, 13, 2),
    Sketcher.Constraint("Vertical", 6, 2, 14, 2),
    Sketcher.Constraint("Equal", 0, 11),
    Sketcher.Constraint("Equal", 6, 15),
    Sketcher.Constraint("Radius", 2, 1.0),
    Sketcher.Constraint("Radius", 3, 6.0),
    Sketcher.Constraint("DistanceY", 0, 2, 0, 1, 23.0),
    Sketcher.Constraint("DistanceY", 6, 1, 6, 2, 19.0),
    Sketcher.Constraint("DistanceY", 17, 3, 4, 3, 60.0),
    Sketcher.Constraint("DistanceX", 9, 2, 6, 2, 21.0),
    Sketcher.Constraint("DistanceY", 18, 3, 3, 3, 60.99),
    Sketcher.Constraint("DistanceX", 0, 2, 3, 3, 11.695),
    Sketcher.Constraint("DistanceX", -1, 1, 3, 3, 19.270099),
    Sketcher.Constraint("DistanceY", -1, 1, 2, 2, 10.249198),
    Sketcher.Constraint("DistanceX", 7, 1, 7, 2, 2.627417),
])
pad2 = doc.addObject("PartDesign::Pad", "Pad001")
body.addObject(pad2)
pad2.Profile = sketch3
pad2.Length = 5
pad2.Reversed = True

sketch4 = doc.addObject("Sketcher::SketchObject", "Sketch003")
body.addObject(sketch4)
sketch4.AttachmentSupport = (doc.XZ_Plane, [""])
sketch4.MapMode = "FlatFace"
sketch4.AttachmentOffset = App.Placement(App.Vector(0, 0, -5), App.Rotation())
sketch4.addGeometry([
    Part.Circle(App.Vector(-53, -67, 0), App.Vector(0, 0, 1), 5),
    Part.Circle(App.Vector(-53, 27, 0), App.Vector(0, 0, 1), 5),
    Part.Circle(App.Vector(16, -67, 0), App.Vector(0, 0, 1), 5),
    Part.Circle(App.Vector(16, 27, 0), App.Vector(0, 0, 1), 5),
    Part.Circle(App.Vector(35, -57, 0), App.Vector(0, 0, 1), 5),
    Part.Circle(App.Vector(35, 18, 0), App.Vector(0, 0, 1), 5),
], False)
sketch4.addConstraint([
    Sketcher.Constraint("Equal", 0, 1),
    Sketcher.Constraint("Equal", 1, 2),
    Sketcher.Constraint("Equal", 2, 3),
    Sketcher.Constraint("Equal", 3, 4),
    Sketcher.Constraint("Equal", 4, 5),
    Sketcher.Constraint("Horizontal", 0, 3, 2, 3),
    Sketcher.Constraint("Horizontal", 1, 3, 3, 3),
    Sketcher.Constraint("Vertical", 0, 3, 1, 3),
    Sketcher.Constraint("Vertical", 2, 3, 3, 3),
    Sketcher.Constraint("Vertical", 4, 3, 5, 3),
    Sketcher.Constraint("Diameter", 0, 10.0),
    Sketcher.Constraint("DistanceY", 0, 3, 1, 3, 94.0),
    Sketcher.Constraint("DistanceX", 0, 3, 2, 3, 69.0),
    Sketcher.Constraint("DistanceX", 2, 3, 4, 3, 19.0),
    Sketcher.Constraint("DistanceY", 4, 3, 5, 3, 75.0),
    Sketcher.Constraint("DistanceY", 2, 3, 4, 3, 9.5),
    Sketcher.Constraint("DistanceX", 0, 3, -1, 1, 53.224901),
    Sketcher.Constraint("DistanceY", 0, 3, -1, 1, 66.821516),
])
pad3 = doc.addObject("PartDesign::Pad", "Pad002")
body.addObject(pad3)
pad3.Profile = sketch4
pad3.Length = 2
pad3.Reversed = True

sketch5 = doc.addObject("Sketcher::SketchObject", "Sketch004")
body.addObject(sketch5)
sketch5.AttachmentSupport = (doc.XZ_Plane, [""])
sketch5.MapMode = "FlatFace"
sketch5.AttachmentOffset = App.Placement(App.Vector(0, 0, -7), App.Rotation())
sketch5.addGeometry([
    Part.Circle(App.Vector(-53.2, -66.8, 0), App.Vector(0, 0, 1), 4),
    Part.Circle(App.Vector(-53.2, 27.2, 0), App.Vector(0, 0, 1), 4),
    Part.Circle(App.Vector(15.8, -66.8, 0), App.Vector(0, 0, 1), 4),
    Part.Circle(App.Vector(15.8, 27.2, 0), App.Vector(0, 0, 1), 4),
    Part.Circle(App.Vector(34.8, -57.3, 0), App.Vector(0, 0, 1), 4),
    Part.Circle(App.Vector(34.8, 17.7, 0), App.Vector(0, 0, 1), 4),
], False)
sketch5.addConstraint([
    Sketcher.Constraint("Equal", 0, 1),
    Sketcher.Constraint("Equal", 1, 2),
    Sketcher.Constraint("Equal", 2, 3),
    Sketcher.Constraint("Equal", 3, 4),
    Sketcher.Constraint("Equal", 4, 5),
    Sketcher.Constraint("Horizontal", 0, 3, 2, 3),
    Sketcher.Constraint("Horizontal", 1, 3, 3, 3),
    Sketcher.Constraint("Vertical", 0, 3, 1, 3),
    Sketcher.Constraint("Vertical", 2, 3, 3, 3),
    Sketcher.Constraint("Vertical", 4, 3, 5, 3),
    Sketcher.Constraint("Diameter", 0, 8.0),
    Sketcher.Constraint("DistanceY", 0, 3, 1, 3, 94.0),
    Sketcher.Constraint("DistanceX", 0, 3, 2, 3, 69.0),
    Sketcher.Constraint("DistanceX", 2, 3, 4, 3, 19.0),
    Sketcher.Constraint("DistanceY", 4, 3, 5, 3, 75.0),
    Sketcher.Constraint("DistanceY", 2, 3, 4, 3, 9.5),
    Sketcher.Constraint("DistanceX", 0, 3, -1, 1, 53.224901),
    Sketcher.Constraint("DistanceY", 0, 3, -1, 1, 66.821516),
])
pad4 = doc.addObject("PartDesign::Pad", "Pad003")
body.addObject(pad4)
pad4.Profile = sketch5
pad4.Length = 5
pad4.Reversed = True
doc.recompute()

fillet = doc.addObject("PartDesign::Fillet", "Fillet")
body.addObject(fillet)
fillet.Base = (pad4, edges_at(pad4, [
    (-42.725, 2.5, 32.178),
    (-63.725, 2.5, 32.178),
    (-63.725, 2.5, -71.822),
    (-42.725, 2.5, -71.822),
]))
fillet.Radius = 10
doc.recompute()

fillet2 = doc.addObject("PartDesign::Fillet", "Fillet001")
body.addObject(fillet2)
fillet2.Base = (fillet, edges_at(fillet, [(7.575, 2.5, 32.178), (7.575, 2.5, -71.822)]))
fillet2.Radius = 5
doc.recompute()

fillet3 = doc.addObject("PartDesign::Fillet", "Fillet002")
body.addObject(fillet3)
fillet3.Base = (fillet2, edges_at(fillet2, [(27.203, 2.5, 32.178), (27.203, 2.5, -71.822)]))
fillet3.Radius = 20

doc.recompute()
